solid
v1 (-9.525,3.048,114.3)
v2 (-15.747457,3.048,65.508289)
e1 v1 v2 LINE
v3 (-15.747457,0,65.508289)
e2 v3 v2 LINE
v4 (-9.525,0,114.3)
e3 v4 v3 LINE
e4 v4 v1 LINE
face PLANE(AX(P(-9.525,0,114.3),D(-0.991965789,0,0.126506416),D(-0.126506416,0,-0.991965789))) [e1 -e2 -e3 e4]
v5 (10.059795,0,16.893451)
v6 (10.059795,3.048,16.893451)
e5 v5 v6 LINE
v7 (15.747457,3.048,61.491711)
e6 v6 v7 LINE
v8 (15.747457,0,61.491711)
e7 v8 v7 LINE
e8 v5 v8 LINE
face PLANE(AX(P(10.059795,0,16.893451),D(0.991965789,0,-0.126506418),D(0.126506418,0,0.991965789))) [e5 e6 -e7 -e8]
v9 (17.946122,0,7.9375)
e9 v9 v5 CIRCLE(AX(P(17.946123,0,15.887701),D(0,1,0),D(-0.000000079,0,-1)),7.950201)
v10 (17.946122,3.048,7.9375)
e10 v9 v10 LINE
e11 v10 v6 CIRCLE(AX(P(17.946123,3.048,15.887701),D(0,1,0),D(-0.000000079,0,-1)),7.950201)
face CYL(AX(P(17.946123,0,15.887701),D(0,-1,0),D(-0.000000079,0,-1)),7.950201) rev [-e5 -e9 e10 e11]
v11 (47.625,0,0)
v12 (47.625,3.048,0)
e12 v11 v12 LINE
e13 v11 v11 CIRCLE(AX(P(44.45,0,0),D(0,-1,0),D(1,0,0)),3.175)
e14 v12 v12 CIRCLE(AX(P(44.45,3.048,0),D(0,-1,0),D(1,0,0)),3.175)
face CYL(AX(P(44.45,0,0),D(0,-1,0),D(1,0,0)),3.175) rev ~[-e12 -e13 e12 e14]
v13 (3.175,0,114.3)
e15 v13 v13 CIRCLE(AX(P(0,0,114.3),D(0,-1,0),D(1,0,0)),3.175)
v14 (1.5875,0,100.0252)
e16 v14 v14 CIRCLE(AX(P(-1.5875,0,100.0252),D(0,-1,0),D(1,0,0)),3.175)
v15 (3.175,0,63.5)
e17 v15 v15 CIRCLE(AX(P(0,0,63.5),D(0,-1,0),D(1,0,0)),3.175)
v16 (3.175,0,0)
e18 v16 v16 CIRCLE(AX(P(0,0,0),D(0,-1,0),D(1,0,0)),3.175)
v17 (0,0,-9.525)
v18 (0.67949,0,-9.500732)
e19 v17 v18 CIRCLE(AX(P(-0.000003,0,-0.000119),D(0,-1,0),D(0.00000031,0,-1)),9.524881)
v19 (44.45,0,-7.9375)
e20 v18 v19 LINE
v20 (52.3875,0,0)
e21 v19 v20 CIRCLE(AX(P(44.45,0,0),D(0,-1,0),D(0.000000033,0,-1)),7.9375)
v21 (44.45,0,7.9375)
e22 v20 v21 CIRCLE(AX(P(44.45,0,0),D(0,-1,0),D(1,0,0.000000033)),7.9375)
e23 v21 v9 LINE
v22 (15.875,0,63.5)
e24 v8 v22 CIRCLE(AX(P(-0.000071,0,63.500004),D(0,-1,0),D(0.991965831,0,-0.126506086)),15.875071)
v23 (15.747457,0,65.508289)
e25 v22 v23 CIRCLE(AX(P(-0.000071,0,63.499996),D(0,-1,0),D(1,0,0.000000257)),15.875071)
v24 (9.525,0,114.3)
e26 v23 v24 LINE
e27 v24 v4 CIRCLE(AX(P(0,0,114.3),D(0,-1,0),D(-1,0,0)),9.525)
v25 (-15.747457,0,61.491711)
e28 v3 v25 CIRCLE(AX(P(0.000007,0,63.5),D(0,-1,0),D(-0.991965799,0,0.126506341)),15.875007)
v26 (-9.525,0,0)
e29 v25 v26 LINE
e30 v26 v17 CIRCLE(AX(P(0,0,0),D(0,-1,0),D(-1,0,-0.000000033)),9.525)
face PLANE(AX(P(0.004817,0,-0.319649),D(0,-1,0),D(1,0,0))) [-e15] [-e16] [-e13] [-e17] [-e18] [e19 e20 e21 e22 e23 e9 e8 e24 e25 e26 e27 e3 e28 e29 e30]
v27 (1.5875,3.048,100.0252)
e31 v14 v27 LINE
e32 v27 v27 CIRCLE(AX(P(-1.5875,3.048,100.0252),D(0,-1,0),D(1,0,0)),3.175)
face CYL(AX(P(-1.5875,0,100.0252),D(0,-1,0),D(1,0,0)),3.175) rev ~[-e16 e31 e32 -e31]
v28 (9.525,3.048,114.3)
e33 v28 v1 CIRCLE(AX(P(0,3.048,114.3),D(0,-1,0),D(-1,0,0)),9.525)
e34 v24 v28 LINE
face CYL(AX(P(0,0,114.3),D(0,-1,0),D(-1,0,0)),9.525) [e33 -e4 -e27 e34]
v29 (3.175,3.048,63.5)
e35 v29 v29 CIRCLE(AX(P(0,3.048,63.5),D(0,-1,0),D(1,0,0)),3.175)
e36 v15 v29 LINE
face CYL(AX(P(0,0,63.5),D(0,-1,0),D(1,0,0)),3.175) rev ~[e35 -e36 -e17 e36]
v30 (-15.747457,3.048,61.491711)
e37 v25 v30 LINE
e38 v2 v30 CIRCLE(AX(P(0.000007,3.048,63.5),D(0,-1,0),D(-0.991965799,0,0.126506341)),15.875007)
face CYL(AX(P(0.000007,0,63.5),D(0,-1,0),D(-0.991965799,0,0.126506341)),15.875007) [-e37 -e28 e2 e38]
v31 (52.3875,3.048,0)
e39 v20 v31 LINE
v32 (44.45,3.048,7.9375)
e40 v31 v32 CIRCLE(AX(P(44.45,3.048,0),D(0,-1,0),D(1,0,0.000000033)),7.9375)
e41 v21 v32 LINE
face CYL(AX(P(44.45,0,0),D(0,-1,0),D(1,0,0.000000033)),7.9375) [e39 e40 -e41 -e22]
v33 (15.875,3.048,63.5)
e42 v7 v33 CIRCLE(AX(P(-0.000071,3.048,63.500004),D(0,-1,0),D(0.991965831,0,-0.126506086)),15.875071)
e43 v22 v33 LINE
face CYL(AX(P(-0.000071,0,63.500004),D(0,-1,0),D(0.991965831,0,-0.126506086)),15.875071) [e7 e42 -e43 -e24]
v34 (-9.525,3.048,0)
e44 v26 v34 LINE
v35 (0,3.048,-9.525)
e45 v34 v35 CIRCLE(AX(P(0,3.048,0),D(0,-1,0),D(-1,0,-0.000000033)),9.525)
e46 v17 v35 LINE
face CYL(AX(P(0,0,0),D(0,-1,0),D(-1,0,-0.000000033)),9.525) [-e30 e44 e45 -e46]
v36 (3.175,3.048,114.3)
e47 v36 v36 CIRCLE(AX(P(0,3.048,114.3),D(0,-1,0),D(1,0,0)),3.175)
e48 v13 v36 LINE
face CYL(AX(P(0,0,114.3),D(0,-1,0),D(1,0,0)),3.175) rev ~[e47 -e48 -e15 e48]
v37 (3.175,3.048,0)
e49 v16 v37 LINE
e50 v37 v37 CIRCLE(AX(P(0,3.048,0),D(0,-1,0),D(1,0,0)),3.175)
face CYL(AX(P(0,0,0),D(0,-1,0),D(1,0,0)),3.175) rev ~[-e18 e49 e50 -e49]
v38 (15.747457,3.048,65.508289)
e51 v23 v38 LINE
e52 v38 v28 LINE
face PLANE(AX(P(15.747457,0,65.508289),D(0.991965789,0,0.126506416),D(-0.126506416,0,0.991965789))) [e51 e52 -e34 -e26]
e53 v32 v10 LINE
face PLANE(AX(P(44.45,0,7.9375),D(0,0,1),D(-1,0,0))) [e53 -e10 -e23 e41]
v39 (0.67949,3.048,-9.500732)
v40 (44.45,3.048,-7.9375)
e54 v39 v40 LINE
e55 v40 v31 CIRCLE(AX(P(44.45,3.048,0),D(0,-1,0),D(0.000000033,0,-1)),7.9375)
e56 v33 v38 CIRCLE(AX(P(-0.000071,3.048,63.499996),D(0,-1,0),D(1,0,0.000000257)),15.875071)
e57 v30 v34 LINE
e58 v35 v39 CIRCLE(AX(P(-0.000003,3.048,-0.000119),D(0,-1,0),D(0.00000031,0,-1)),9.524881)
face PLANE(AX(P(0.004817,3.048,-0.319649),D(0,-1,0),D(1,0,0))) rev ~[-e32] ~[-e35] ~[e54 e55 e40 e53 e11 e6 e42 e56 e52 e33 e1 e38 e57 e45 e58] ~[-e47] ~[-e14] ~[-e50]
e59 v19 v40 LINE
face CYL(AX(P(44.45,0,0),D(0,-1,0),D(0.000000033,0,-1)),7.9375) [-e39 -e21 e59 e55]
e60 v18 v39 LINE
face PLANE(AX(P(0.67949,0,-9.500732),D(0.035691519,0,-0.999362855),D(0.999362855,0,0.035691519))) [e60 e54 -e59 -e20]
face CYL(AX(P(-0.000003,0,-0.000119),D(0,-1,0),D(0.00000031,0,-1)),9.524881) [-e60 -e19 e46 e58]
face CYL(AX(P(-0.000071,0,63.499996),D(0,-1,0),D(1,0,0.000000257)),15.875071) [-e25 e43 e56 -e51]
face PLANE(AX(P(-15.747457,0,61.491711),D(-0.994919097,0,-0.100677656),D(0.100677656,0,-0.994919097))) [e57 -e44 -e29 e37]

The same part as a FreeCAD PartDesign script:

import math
import FreeCAD as App
import Part
import Sketcher
from FreeCAD import Vector
Q = App.Units.Quantity

doc = App.newDocument("Part")
body = doc.addObject("PartDesign::Body", "Body")

sketch1 = body.newObject("Sketcher::SketchObject", "Sketch")
sketch1.AttachmentSupport = (doc.getObject("XZ_Plane"), [""])
sketch1.MapMode = "FlatFace"
sketch1.addGeometry([
    Part.LineSegment(Vector(0.67949, -9.500732, 0), Vector(44.45, -7.9375, 0)),
    Part.ArcOfCircle(Part.Circle(Vector(44.45, 0, 0), Vector(0, 0, 1), 7.9375), math.radians(-89.999998), math.radians(-0.000002)),
    Part.ArcOfCircle(Part.Circle(Vector(44.45, 0, 0), Vector(0, 0, 1), 7.9375), math.radians(0.000002), math.radians(89.999998)),
    Part.LineSegment(Vector(44.45, 7.9375, 0), Vector(17.946122, 7.9375, 0)),
    Part.ArcOfCircle(Part.Circle(Vector(17.946123, 15.887701, 0), Vector(0, 0, 1), 7.950201), math.radians(172.732253), math.radians(269.999995)),
    Part.LineSegment(Vector(10.059795, 16.893451, 0), Vector(15.747457, 61.491711, 0)),
    Part.ArcOfCircle(Part.Circle(Vector(-0.000071, 63.500004, 0), Vector(0, 0, 1), 15.875071), math.radians(-7.267739), math.radians(-0.000015)),
    Part.ArcOfCircle(Part.Circle(Vector(-0.000071, 63.499996, 0), Vector(0, 0, 1), 15.875071), math.radians(0.000015), math.radians(7.267739)),
    Part.LineSegment(Vector(15.747457, 65.508289, 0), Vector(9.525, 114.3, 0)),
    Part.ArcOfCircle(Part.Circle(Vector(0, 114.3, 0), Vector(0, 0, 1), 9.525), math.radians(0), math.radians(180)),
    Part.LineSegment(Vector(-9.525, 114.3, 0), Vector(-15.747457, 65.508289, 0)),
    Part.ArcOfCircle(Part.Circle(Vector(0.000007, 63.5, 0), Vector(0, 0, 1), 15.875007), math.radians(172.732247), math.radians(187.267753)),
    Part.LineSegment(Vector(-15.747457, 61.491711, 0), Vector(-9.525, 0, 0)),
    Part.ArcOfCircle(Part.Circle(Vector(0, 0, 0), Vector(0, 0, 1), 9.525), math.radians(-179.999998), math.radians(-90.000002)),
    Part.ArcOfCircle(Part.Circle(Vector(-0.000003, -0.000119, 0), Vector(0, 0, 1), 9.524881), math.radians(-89.999982), math.radians(-85.909117)),
    Part.Circle(Vector(0, 0, 0), Vector(0, 0, 1), 3.175),
    Part.Circle(Vector(44.45, 0, 0), Vector(0, 0, 1), 3.175),
    Part.Circle(Vector(0, 63.5, 0), Vector(0, 0, 1), 3.175),
    Part.Circle(Vector(-1.5875, 100.0252, 0), Vector(0, 0, 1), 3.175),
    Part.Circle(Vector(0, 114.3, 0), Vector(0, 0, 1), 3.175),
], False)
sketch1.addConstraint([
    Sketcher.Constraint("Coincident", 0, 2, 1, 1),
    Sketcher.Constraint("Coincident", 1, 2, 2, 1),
    Sketcher.Constraint("Coincident", 2, 2, 3, 1),
    Sketcher.Constraint("Coincident", 3, 2, 4, 2),
    Sketcher.Constraint("Coincident", 4, 1, 5, 1),
    Sketcher.Constraint("Coincident", 5, 2, 6, 1),
    Sketcher.Constraint("Coincident", 6, 2, 7, 1),
    Sketcher.Constraint("Coincident", 7, 2, 8, 1),
    Sketcher.Constraint("Coincident", 8, 2, 9, 1),
    Sketcher.Constraint("Coincident", 9, 2, 10, 1),
    Sketcher.Constraint("Coincident", 10, 2, 11, 1),
    Sketcher.Constraint("Coincident", 11, 2, 12, 1),
    Sketcher.Constraint("Coincident", 12, 2, 13, 1),
    Sketcher.Constraint("Coincident", 13, 2, 14, 1),
    Sketcher.Constraint("Coincident", 14, 2, 0, 1),
    Sketcher.Constraint("Horizontal", 3),
    Sketcher.Constraint("Coincident", 13, 3, -1, 1),
    Sketcher.Constraint("Coincident", 15, 3, -1, 1),
    Sketcher.Constraint("Coincident", 2, 3, 1, 3),
    Sketcher.Constraint("Coincident", 7, 3, 6, 3),
    Sketcher.Constraint("Coincident", 16, 3, 1, 3),
    Sketcher.Constraint("Coincident", 17, 3, 11, 3),
    Sketcher.Constraint("Coincident", 19, 3, 9, 3),
    Sketcher.Constraint("PointOnObject", 1, 3, -1),
    Sketcher.Constraint("PointOnObject", 9, 3, -2),
    Sketcher.Constraint("PointOnObject", 17, 3, -2),
    Sketcher.Constraint("PointOnObject", 1, 2, -1),
    Sketcher.Constraint("PointOnObject", 12, 2, -1),
    Sketcher.Constraint("PointOnObject", 13, 2, -2),
    Sketcher.Constraint("Diameter", 15, Q("0.25 in")),
    Sketcher.Constraint("Diameter", 16, Q("0.25 in")),
    Sketcher.Constraint("Diameter", 17, Q("0.25 in")),
    Sketcher.Constraint("Diameter", 18, Q("0.25 in")),
    Sketcher.Constraint("Diameter", 19, Q("0.25 in")),
    Sketcher.Constraint("Radius", 1, Q("0.3125 in")),
    Sketcher.Constraint("Radius", 4, Q("0.313 in")),
    Sketcher.Constraint("Radius", 9, Q("0.375 in")),
    Sketcher.Constraint("Radius", 13, Q("0.375 in")),
    Sketcher.Constraint("DistanceY", 6, 3, 9, 3, Q("1.9999998 in")),
    Sketcher.Constraint("DistanceY", 11, 3, 9, 3, Q("2 in")),
    Sketcher.Constraint("DistanceY", 6, 2, 8, 2, Q("2 in")),
    Sketcher.Constraint("DistanceY", 6, 3, 9, 2, Q("1.9999998 in")),
    Sketcher.Constraint("DistanceY", -1, 1, 6, 3, Q("2.5000002 in")),
    Sketcher.Constraint("DistanceY", -1, 1, 6, 2, Q("2.5 in")),
    Sketcher.Constraint("DistanceX", -1, 1, 1, 3, Q("1.75 in")),
    Sketcher.Constraint("DistanceX", -1, 1, 0, 2, Q("1.75 in")),
    Sketcher.Constraint("DistanceX", -1, 1, 2, 2, Q("1.75 in")),
    Sketcher.Constraint("DistanceX", 14, 3, 2, 3, Q("1.7500001 in")),
    Sketcher.Constraint("DistanceX", 8, 2, 6, 2, Q("0.25 in")),
    Sketcher.Constraint("DistanceX", 18, 3, -1, 1, Q("0.0625 in")),
    Sketcher.Constraint("DistanceY", -1, 1, 18, 3, Q("3.938 in")),
    Sketcher.Constraint("Radius", 6, 15.875071),
    Sketcher.Constraint("Radius", 14, 9.524881),
    Sketcher.Constraint("Radius", 11, 15.875007),
    Sketcher.Constraint("DistanceX", 3, 2, 3, 1, 26.503878),
    Sketcher.Constraint("Distance", 8, 49.186889),
    Sketcher.Constraint("Distance", 10, 49.186889),
    Sketcher.Constraint("Distance", 12, 61.80574),
    Sketcher.Constraint("DistanceY", -1, 1, 4, 1, 16.893451),
    Sketcher.Constraint("DistanceY", -1, 1, 5, 2, 61.491711),
    Sketcher.Constraint("DistanceX", -1, 1, 14, 2, 0.67949),
    Sketcher.Constraint("Distance", 5, 44.959474),
])
pad1 = body.newObject("PartDesign::Pad", "Pad")
pad1.Profile = sketch1
pad1.Length = Q("0.12 in")
pad1.Reversed = True

doc.recompute()
